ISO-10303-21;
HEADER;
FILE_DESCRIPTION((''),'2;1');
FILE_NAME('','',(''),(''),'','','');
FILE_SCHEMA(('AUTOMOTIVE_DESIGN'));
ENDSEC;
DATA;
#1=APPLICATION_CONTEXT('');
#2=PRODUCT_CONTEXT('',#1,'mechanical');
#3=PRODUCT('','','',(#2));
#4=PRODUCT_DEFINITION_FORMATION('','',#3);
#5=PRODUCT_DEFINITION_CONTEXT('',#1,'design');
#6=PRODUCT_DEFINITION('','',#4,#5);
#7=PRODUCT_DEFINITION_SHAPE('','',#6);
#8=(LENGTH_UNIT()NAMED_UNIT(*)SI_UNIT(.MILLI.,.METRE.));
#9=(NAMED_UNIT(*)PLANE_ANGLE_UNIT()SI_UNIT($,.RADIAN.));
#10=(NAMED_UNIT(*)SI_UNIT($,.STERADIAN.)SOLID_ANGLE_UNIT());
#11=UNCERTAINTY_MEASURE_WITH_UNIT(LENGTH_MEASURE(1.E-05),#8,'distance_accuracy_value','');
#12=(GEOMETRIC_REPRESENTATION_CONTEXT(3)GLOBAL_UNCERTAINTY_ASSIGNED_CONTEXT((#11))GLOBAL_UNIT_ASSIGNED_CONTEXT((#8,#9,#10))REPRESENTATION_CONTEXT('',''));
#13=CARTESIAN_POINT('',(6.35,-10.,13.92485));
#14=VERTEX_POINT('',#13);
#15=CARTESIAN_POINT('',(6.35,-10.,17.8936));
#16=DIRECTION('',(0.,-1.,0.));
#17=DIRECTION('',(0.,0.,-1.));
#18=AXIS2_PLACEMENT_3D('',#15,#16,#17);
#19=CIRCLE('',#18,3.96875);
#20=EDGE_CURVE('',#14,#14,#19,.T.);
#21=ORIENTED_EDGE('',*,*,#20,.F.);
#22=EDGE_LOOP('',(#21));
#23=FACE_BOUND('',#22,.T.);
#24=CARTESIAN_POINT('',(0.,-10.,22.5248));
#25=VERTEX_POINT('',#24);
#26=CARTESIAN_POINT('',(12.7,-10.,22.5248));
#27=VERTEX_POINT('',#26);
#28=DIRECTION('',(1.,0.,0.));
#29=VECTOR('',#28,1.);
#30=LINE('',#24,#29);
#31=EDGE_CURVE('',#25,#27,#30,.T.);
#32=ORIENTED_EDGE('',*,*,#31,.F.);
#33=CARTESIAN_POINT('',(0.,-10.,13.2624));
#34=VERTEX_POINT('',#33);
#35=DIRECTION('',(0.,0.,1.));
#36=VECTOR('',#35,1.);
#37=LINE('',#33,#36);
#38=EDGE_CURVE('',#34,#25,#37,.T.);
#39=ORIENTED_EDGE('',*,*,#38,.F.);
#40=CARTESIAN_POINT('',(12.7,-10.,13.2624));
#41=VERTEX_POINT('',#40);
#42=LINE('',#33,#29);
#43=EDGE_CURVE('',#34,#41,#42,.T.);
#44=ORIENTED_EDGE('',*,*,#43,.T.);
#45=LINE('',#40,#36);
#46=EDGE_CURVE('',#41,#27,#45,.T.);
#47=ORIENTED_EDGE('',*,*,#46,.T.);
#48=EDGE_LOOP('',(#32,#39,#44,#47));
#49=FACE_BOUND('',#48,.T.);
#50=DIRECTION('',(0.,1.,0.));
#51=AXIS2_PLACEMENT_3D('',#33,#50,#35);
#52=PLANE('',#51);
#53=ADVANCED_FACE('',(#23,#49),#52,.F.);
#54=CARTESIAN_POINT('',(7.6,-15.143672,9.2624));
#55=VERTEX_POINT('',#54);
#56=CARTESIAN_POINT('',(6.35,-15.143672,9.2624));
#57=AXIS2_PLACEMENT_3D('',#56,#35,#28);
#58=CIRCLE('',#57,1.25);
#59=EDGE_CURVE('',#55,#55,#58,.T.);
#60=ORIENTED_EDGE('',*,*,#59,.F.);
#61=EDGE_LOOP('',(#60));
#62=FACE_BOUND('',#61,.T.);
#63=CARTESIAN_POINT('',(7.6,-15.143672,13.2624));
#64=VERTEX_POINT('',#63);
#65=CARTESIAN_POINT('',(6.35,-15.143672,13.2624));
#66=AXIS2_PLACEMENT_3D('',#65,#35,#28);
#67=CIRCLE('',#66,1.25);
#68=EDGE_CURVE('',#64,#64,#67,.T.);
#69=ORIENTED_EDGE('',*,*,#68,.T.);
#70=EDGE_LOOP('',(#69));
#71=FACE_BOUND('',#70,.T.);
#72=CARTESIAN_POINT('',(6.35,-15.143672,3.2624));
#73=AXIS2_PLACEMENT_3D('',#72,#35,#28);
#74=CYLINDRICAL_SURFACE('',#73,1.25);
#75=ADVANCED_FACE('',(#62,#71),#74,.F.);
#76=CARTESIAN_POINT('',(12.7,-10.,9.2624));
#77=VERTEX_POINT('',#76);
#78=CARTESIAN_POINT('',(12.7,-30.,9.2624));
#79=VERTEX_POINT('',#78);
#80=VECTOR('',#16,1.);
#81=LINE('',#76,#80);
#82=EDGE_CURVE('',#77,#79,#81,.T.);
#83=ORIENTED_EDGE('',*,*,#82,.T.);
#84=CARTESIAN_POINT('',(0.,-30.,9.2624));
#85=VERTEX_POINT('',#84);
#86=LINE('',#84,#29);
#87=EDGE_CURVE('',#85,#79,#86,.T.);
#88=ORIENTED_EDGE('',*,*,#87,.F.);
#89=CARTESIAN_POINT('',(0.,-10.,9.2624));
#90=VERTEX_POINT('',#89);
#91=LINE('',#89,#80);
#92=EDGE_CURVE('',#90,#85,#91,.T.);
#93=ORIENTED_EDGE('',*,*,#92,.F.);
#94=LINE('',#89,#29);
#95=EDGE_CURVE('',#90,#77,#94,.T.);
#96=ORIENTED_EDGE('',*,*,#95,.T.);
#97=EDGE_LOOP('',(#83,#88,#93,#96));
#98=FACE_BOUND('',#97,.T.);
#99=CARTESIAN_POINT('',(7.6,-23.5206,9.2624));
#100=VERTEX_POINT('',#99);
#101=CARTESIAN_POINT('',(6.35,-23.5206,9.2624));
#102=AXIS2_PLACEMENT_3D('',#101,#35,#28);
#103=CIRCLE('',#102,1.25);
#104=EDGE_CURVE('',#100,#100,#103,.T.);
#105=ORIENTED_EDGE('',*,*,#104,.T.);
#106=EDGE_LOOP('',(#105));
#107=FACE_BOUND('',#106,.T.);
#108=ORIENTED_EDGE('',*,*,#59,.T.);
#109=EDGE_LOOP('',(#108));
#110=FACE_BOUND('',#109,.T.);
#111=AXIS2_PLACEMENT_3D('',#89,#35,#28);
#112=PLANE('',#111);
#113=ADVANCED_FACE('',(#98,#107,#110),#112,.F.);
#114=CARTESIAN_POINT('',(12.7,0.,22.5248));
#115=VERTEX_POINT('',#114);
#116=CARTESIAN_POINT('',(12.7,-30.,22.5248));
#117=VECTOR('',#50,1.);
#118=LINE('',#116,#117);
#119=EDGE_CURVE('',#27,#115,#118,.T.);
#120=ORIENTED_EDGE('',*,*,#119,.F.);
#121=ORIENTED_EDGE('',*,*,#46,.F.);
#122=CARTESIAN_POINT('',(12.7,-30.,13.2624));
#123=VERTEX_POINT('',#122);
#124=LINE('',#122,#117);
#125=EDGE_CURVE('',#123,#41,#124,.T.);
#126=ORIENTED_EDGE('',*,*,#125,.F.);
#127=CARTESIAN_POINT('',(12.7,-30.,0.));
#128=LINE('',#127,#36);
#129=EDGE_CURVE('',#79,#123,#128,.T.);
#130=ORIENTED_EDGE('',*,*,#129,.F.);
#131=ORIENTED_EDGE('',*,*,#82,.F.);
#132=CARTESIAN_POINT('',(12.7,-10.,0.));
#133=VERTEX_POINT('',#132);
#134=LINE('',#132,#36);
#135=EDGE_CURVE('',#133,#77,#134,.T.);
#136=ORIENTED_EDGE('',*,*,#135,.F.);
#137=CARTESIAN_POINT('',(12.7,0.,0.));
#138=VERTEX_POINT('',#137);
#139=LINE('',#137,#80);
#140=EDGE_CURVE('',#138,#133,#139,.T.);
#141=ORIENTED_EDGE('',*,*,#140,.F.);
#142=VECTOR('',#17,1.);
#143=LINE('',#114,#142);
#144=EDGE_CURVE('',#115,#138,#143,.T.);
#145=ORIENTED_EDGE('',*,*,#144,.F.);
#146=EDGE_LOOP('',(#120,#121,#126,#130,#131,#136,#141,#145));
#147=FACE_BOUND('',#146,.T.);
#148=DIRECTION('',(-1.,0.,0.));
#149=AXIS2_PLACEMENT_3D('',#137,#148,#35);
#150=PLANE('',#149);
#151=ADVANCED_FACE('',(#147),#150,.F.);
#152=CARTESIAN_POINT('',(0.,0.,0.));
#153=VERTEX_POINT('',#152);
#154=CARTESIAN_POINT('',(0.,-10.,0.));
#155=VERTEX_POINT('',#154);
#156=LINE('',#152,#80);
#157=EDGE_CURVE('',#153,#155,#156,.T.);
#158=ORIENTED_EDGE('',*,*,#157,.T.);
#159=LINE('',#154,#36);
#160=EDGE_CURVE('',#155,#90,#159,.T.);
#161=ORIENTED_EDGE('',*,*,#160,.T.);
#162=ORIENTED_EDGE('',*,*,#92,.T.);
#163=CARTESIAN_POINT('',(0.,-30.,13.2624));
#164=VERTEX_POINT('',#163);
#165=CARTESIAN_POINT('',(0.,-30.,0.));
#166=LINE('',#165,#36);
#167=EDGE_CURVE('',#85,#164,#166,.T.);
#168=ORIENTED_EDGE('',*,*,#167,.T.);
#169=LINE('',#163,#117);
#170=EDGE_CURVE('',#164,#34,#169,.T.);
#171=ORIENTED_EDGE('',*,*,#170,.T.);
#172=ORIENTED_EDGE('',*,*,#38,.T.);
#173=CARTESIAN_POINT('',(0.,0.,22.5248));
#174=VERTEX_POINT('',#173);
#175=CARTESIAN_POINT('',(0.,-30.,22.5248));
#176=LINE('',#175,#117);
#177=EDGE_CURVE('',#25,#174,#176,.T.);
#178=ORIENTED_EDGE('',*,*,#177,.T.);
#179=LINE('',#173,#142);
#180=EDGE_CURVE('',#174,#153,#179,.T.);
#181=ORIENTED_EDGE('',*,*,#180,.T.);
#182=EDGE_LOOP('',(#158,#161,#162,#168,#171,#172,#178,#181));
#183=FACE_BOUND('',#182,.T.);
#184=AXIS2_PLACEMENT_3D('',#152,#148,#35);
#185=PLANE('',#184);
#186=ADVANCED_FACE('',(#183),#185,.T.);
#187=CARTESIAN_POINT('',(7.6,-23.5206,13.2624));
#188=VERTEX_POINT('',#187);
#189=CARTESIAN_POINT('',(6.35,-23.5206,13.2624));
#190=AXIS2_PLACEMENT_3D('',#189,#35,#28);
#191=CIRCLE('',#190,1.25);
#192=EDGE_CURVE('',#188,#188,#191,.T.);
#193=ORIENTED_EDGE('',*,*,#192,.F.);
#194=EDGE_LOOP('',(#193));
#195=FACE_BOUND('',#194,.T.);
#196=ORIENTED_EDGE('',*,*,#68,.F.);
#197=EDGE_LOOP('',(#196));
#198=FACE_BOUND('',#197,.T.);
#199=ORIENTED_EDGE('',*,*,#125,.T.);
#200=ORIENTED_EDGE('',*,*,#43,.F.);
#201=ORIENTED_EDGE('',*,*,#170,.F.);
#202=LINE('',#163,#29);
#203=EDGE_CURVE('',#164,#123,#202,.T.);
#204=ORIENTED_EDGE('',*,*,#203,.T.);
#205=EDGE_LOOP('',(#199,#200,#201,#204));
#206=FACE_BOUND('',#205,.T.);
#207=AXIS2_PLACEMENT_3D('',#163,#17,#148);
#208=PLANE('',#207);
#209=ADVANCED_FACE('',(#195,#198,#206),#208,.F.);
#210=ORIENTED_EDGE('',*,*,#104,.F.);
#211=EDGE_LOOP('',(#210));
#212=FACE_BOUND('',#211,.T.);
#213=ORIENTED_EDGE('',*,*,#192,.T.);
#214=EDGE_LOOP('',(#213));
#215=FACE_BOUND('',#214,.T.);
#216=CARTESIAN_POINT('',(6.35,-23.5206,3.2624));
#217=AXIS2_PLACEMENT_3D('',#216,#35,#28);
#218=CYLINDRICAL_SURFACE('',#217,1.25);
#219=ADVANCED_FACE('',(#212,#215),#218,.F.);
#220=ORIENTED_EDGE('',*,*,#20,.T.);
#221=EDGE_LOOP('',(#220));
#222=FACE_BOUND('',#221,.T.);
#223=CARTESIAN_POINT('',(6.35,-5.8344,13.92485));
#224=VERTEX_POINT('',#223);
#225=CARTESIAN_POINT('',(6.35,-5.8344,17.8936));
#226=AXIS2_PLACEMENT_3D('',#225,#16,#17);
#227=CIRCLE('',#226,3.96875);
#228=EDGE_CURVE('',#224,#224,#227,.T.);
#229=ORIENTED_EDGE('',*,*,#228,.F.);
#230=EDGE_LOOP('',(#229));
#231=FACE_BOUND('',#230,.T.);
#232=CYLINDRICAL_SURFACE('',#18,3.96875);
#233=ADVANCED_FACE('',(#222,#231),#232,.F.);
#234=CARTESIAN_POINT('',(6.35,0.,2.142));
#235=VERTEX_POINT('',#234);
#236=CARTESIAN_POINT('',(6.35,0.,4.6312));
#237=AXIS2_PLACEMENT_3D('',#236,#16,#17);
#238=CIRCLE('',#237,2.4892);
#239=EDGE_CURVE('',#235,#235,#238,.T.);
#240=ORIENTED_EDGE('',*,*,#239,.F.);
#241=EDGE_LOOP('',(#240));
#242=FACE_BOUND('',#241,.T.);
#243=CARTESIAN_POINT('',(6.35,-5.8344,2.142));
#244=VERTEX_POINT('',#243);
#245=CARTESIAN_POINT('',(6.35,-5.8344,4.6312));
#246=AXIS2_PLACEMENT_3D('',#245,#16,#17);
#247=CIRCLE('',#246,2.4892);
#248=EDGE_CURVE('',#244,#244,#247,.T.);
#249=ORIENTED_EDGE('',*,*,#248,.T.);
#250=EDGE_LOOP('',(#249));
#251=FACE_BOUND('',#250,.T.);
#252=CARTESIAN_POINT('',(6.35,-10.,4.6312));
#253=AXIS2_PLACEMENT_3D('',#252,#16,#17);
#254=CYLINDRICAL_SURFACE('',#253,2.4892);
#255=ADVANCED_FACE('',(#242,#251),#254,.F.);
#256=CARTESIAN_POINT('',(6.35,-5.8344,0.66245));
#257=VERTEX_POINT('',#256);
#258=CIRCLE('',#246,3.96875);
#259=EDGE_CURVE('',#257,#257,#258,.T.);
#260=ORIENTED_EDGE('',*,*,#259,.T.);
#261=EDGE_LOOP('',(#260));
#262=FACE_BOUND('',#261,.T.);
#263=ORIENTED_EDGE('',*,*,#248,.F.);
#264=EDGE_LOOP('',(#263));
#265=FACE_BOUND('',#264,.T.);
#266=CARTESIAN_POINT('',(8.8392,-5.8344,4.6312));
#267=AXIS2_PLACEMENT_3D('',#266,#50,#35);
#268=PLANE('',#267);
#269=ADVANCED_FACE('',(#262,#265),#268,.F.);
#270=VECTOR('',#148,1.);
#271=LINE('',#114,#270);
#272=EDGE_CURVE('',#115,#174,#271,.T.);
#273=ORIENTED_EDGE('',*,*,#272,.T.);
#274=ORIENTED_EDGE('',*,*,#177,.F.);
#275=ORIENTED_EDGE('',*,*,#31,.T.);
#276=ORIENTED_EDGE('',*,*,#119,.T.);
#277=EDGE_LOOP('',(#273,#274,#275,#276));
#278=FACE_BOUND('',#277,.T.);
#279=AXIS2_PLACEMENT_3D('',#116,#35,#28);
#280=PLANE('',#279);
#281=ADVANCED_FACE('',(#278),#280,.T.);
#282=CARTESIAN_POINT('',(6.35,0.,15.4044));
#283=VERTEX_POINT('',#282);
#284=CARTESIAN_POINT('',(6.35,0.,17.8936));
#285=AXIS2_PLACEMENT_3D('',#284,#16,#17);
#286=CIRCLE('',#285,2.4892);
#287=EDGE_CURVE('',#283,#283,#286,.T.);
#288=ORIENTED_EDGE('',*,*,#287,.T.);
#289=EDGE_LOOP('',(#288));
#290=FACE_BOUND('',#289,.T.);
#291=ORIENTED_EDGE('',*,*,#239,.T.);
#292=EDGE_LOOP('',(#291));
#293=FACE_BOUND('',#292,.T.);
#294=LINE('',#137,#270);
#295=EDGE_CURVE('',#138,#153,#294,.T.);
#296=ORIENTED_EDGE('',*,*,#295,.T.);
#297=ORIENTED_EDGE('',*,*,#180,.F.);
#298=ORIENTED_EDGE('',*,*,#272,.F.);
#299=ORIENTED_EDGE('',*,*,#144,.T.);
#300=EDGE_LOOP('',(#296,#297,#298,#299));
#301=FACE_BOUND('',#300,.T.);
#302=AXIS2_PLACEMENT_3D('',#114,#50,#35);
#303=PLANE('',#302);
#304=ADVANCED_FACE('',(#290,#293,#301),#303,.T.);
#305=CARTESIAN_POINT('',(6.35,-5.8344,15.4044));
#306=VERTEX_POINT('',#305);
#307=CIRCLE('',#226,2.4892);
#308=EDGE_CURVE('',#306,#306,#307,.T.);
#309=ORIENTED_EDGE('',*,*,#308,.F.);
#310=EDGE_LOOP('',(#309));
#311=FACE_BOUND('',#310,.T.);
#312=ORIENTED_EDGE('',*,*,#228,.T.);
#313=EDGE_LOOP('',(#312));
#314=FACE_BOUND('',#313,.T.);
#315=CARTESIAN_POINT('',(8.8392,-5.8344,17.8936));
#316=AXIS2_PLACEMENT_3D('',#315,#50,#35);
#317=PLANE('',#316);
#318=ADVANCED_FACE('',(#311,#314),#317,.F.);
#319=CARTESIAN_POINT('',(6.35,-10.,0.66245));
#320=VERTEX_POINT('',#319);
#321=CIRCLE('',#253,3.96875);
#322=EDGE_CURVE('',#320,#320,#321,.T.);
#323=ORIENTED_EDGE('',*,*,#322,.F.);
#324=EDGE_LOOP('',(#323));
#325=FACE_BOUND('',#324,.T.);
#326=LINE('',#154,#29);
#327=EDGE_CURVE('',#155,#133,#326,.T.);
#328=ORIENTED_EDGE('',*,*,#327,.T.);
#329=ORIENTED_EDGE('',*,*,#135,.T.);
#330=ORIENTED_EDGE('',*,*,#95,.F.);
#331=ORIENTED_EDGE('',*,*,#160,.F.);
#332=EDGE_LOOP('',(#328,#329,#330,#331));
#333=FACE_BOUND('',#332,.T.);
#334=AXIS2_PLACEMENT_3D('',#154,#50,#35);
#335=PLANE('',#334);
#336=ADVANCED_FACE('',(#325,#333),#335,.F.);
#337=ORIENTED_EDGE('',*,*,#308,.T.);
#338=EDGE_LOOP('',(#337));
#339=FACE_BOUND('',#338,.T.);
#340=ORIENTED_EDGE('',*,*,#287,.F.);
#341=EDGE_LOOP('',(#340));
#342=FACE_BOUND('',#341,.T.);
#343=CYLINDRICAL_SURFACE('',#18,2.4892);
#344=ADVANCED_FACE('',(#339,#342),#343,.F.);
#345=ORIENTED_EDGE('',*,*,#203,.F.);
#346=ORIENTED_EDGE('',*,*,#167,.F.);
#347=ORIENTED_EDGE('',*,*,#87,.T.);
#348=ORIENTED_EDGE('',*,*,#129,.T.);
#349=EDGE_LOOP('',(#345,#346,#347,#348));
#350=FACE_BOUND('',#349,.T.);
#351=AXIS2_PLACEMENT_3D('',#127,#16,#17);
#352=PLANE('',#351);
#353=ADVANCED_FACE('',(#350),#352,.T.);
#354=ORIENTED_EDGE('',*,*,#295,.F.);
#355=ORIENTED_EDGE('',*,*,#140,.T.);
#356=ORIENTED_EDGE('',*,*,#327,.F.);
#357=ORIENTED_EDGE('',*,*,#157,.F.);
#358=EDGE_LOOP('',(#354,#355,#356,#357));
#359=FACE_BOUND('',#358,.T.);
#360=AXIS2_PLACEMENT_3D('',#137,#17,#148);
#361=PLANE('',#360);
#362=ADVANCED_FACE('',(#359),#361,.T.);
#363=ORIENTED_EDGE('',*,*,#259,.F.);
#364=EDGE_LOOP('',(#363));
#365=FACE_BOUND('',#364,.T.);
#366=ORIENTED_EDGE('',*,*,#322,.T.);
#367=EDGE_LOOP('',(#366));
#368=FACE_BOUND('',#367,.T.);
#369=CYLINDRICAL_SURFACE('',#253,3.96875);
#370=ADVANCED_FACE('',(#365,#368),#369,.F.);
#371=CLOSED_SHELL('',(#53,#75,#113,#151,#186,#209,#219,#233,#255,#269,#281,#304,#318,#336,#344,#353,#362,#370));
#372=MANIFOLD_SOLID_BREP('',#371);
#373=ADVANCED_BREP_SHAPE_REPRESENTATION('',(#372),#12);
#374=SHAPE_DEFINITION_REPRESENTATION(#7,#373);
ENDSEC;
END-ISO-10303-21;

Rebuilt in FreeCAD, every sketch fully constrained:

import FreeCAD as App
import Part
import Sketcher
Q = App.Units.Quantity


def add_polygon(sketch, points):
    """Adds a closed chain of lines whose ends are joined by coincident constraints."""
    first, n = sketch.GeometryCount, len(points)
    for a, b in zip(points, points[1:] + points[:1]):
        sketch.addGeometry(Part.LineSegment(App.Vector(*a, 0), App.Vector(*b, 0)), False)
    for i in range(n):
        sketch.addConstraint(Sketcher.Constraint("Coincident", first + i, 2, first + (i + 1) % n, 1))

doc = App.newDocument("Part")
body = doc.addObject("PartDesign::Body", "Body")

sketch1 = body.newObject("Sketcher::SketchObject", "Sketch")
sketch1.AttachmentSupport = (doc.getObject("YZ_Plane"), [""])
sketch1.MapMode = "FlatFace"
add_polygon(sketch1, [(0, 22.5248), (0, 0), (-30, 0), (-30, 22.5248)])
sketch1.addConstraint([
    Sketcher.Constraint("Vertical", 0),
    Sketcher.Constraint("Horizontal", 1),
    Sketcher.Constraint("Vertical", 2),
    Sketcher.Constraint("Horizontal", 3),
    Sketcher.Constraint("Coincident", 0, 2, -1, 1),
    Sketcher.Constraint("DistanceX", 1, 2, 1, 1, Q("30 mm")),
    Sketcher.Constraint("DistanceY", 0, 2, 0, 1, Q("22.5248 mm")),
])
pad1 = body.newObject("PartDesign::Pad", "Pad")
pad1.Profile = sketch1
pad1.Length = 12.7

sketch2 = body.newObject("Sketcher::SketchObject", "Sketch001")
sketch2.AttachmentSupport = (doc.getObject("YZ_Plane"), [""])
sketch2.MapMode = "FlatFace"
sketch2.AttachmentOffset = App.Placement(App.Vector(0, 0, 12.7), App.Rotation())
add_polygon(sketch2, [(-10, 9.2624), (-30, 9.2624), (-30, 0), (-10, 0)])
sketch2.addConstraint([
    Sketcher.Constraint("Horizontal", 0),
    Sketcher.Constraint("Vertical", 1),
    Sketcher.Constraint("Horizontal", 2),
    Sketcher.Constraint("Vertical", 3),
    Sketcher.Constraint("PointOnObject", 1, 2, -1),
    Sketcher.Constraint("DistanceX", 0, 2, 0, 1, Q("20 mm")),
    Sketcher.Constraint("DistanceX", 0, 2, -1, 1, Q("30 mm")),
    Sketcher.Constraint("DistanceY", 1, 2, 1, 1, Q("9.2624 mm")),
])
pocket1 = body.newObject("PartDesign::Pocket", "Pocket")
pocket1.Profile = sketch2
pocket1.Type = "ThroughAll"

sketch3 = body.newObject("Sketcher::SketchObject", "Sketch002")
sketch3.AttachmentSupport = (doc.getObject("YZ_Plane"), [""])
sketch3.MapMode = "FlatFace"
sketch3.AttachmentOffset = App.Placement(App.Vector(0, 0, 12.7), App.Rotation())
add_polygon(sketch3, [(-10, 22.5248), (-30, 22.5248), (-30, 13.2624), (-10, 13.2624)])
sketch3.addConstraint([
    Sketcher.Constraint("Horizontal", 0),
    Sketcher.Constraint("Vertical", 1),
    Sketcher.Constraint("Horizontal", 2),
    Sketcher.Constraint("Vertical", 3),
    Sketcher.Constraint("DistanceX", 0, 2, 0, 1, Q("20 mm")),
    Sketcher.Constraint("DistanceX", 0, 2, -1, 1, Q("30 mm")),
    Sketcher.Constraint("DistanceY", 1, 2, 1, 1, Q("9.2624 mm")),
    Sketcher.Constraint("DistanceY", -1, 1, 0, 2, Q("22.5248 mm")),
])
pocket2 = body.newObject("PartDesign::Pocket", "Pocket001")
pocket2.Profile = sketch3
pocket2.Type = "ThroughAll"

sketch4 = body.newObject("Sketcher::SketchObject", "Sketch003")
sketch4.AttachmentSupport = (doc.getObject("XZ_Plane"), [""])
sketch4.MapMode = "FlatFace"
sketch4.AttachmentOffset = App.Placement(App.Vector(0, 0, 10), App.Rotation())
sketch4.addGeometry([
    Part.Circle(App.Vector(6.35, 4.6312, 0), App.Vector(0, 0, 1), 2.4892),
    Part.Circle(App.Vector(6.35, 17.8936, 0), App.Vector(0, 0, 1), 2.4892),
], False)
sketch4.addConstraint([
    Sketcher.Constraint("Equal", 0, 1),
    Sketcher.Constraint("Vertical", 0, 3, 1, 3),
    Sketcher.Constraint("Diameter", 0, Q("4.9784 mm")),
    Sketcher.Constraint("DistanceX", -1, 1, 0, 3, Q("6.35 mm")),
    Sketcher.Constraint("DistanceY", -1, 1, 0, 3, Q("4.6312 mm")),
    Sketcher.Constraint("DistanceY", -1, 1, 1, 3, Q("17.8936 mm")),
])
doc.recompute()
hole = body.newObject("PartDesign::Hole", "Hole")
hole.Profile = sketch4
hole.ThreadType = "None"
hole.Diameter = 4.9784
hole.DepthType = "Dimension"
hole.Depth = 10
hole.DrillPoint = "Flat"
hole.HoleCutType = "Counterbore"
hole.HoleCutDiameter = 7.9375
hole.HoleCutDepth = 4.1656

sketch5 = body.newObject("Sketcher::SketchObject", "Sketch004")
sketch5.AttachmentSupport = (doc.getObject("XY_Plane"), [""])
sketch5.MapMode = "FlatFace"
sketch5.AttachmentOffset = App.Placement(App.Vector(0, 0, 13.2624), App.Rotation())
sketch5.addGeometry([
    Part.Circle(App.Vector(6.35, -15.143672, 0), App.Vector(0, 0, 1), 1.25),
    Part.Circle(App.Vector(6.35, -23.5206, 0), App.Vector(0, 0, 1), 1.25),
], False)
sketch5.addConstraint([
    Sketcher.Constraint("Equal", 0, 1),
    Sketcher.Constraint("Vertical", 0, 3, 1, 3),
    Sketcher.Constraint("Diameter", 0, Q("2.5 mm")),
    Sketcher.Constraint("DistanceX", -1, 1, 0, 3, Q("6.35 mm")),
    Sketcher.Constraint("DistanceY", 1, 3, -1, 1, Q("23.5206 mm")),
    Sketcher.Constraint("DistanceY", 0, 3, -1, 1, Q("15.143672 mm")),
])
pocket3 = body.newObject("PartDesign::Pocket", "Pocket002")
pocket3.Profile = sketch5
pocket3.Length = 10

doc.recompute()
